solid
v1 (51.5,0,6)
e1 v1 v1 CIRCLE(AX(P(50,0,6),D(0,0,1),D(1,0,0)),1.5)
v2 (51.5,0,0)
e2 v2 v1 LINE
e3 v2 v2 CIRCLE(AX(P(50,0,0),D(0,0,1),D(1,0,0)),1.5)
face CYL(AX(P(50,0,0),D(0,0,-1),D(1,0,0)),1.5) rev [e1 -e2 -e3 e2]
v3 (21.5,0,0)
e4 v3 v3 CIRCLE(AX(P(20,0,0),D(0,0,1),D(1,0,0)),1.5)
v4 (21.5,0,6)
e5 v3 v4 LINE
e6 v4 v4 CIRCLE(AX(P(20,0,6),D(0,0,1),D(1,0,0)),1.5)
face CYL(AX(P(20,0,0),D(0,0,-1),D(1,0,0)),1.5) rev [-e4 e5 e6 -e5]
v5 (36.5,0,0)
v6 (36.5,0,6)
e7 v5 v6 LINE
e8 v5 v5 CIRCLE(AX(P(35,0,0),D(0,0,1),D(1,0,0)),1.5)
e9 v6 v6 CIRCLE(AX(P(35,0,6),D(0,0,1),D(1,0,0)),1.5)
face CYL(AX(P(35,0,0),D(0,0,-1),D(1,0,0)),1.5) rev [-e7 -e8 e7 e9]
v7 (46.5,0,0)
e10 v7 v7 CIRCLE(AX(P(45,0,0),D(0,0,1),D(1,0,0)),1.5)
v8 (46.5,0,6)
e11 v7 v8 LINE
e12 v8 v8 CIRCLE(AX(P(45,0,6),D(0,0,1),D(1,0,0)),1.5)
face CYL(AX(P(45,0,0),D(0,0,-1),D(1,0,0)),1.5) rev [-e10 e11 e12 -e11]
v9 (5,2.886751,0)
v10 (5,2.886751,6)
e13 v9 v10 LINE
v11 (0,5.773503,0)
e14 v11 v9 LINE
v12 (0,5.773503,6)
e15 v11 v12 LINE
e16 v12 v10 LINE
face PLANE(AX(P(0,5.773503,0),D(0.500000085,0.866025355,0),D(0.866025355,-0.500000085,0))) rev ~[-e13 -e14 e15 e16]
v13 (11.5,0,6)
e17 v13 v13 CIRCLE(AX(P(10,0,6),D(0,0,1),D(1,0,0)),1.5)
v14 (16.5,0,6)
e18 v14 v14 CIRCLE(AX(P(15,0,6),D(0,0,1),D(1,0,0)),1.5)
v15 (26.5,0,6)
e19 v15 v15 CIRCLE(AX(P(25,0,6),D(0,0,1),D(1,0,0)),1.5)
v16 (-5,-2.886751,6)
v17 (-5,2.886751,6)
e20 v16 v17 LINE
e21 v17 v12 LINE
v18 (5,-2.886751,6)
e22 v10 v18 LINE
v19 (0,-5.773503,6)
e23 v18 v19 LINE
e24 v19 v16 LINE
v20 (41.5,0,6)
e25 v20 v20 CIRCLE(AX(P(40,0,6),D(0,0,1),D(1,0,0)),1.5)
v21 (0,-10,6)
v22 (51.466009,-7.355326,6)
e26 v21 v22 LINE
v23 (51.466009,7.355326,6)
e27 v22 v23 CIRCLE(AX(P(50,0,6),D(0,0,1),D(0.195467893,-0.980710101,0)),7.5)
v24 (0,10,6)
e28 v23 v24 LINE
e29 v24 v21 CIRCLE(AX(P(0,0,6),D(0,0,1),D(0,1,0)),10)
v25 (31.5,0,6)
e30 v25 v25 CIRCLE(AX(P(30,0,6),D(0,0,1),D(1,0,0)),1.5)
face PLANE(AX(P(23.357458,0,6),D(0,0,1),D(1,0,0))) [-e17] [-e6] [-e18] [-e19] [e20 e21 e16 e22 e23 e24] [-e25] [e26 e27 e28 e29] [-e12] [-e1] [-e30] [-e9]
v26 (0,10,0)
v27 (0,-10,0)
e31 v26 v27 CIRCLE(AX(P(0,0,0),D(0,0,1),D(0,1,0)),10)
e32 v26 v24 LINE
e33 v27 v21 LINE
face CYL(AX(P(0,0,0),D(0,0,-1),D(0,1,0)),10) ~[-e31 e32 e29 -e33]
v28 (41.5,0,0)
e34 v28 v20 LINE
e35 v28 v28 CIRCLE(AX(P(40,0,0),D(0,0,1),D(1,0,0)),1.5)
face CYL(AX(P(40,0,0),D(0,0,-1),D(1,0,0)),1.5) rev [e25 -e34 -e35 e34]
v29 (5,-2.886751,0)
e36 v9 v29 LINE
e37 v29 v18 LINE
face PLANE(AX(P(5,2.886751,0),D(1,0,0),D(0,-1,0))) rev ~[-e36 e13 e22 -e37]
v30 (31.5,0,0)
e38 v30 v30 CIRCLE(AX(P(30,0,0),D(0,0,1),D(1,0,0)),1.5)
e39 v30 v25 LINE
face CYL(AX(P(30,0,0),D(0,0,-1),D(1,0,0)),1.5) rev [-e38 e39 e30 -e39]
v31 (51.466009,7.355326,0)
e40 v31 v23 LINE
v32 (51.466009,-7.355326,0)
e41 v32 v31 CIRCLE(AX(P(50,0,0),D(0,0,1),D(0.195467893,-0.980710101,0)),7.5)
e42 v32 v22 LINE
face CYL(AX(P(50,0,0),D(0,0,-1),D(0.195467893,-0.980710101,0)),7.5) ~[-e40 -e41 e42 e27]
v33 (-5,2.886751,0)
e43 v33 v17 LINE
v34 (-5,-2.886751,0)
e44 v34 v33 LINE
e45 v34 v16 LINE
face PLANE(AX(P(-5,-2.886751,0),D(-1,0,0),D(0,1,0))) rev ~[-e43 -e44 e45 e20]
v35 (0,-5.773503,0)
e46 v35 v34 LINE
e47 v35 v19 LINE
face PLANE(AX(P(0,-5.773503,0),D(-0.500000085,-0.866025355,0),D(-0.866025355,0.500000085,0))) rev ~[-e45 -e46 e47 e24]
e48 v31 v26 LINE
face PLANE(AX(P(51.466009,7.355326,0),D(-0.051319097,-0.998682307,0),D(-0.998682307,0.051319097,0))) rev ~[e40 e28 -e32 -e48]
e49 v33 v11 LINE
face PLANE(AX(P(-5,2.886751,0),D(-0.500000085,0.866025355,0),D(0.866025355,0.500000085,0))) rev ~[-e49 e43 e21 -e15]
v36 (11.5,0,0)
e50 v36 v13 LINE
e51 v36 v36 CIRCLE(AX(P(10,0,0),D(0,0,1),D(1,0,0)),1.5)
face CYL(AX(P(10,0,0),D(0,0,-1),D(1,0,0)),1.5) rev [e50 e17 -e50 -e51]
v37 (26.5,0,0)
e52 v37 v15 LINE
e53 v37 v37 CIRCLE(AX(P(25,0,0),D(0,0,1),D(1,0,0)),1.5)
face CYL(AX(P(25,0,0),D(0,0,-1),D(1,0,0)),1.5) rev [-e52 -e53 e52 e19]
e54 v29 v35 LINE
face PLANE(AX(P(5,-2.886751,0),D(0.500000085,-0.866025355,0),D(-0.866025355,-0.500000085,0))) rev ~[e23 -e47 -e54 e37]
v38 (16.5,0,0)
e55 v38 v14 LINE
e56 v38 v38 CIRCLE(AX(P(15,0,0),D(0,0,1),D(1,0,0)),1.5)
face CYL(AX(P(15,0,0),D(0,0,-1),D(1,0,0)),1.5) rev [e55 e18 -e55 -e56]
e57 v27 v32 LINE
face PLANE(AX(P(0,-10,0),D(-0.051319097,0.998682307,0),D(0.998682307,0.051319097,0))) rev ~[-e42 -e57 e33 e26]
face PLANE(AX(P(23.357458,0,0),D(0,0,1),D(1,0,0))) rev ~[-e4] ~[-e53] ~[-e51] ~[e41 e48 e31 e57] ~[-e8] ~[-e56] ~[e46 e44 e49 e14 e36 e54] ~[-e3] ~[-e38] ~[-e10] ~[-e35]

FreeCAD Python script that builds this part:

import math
import FreeCAD as App
import Part
import Sketcher
from FreeCAD import Vector
Q = App.Units.Quantity


def add_polygon(sketch, points):
    """Adds a closed chain of lines whose ends are joined by coincident constraints."""
    first, n = sketch.GeometryCount, len(points)
    for a, b in zip(points, points[1:] + points[:1]):
        sketch.addGeometry(Part.LineSegment(App.Vector(*a, 0), App.Vector(*b, 0)), False)
    for i in range(n):
        sketch.addConstraint(Sketcher.Constraint("Coincident", first + i, 2, first + (i + 1) % n, 1))

doc = App.newDocument("Part")
body = doc.addObject("PartDesign::Body", "Body")

sketch1 = body.newObject("Sketcher::SketchObject", "Sketch")
sketch1.AttachmentSupport = (doc.getObject("XY_Plane"), [""])
sketch1.MapMode = "FlatFace"
sketch1.addGeometry(Part.LineSegment(Vector(51.5, 7.4, 0), Vector(0, 10, 0)), False)
sketch1.addGeometry(Part.ArcOfCircle(Part.Circle(Vector(0, 0, 0), Vector(0, 0, 1), 10), math.radians(90), math.radians(270)), False)
sketch1.addGeometry(Part.LineSegment(Vector(0, -10, 0), Vector(51.5, -7.4, 0)), False)
sketch1.addGeometry(Part.ArcOfCircle(Part.Circle(Vector(50, 0, 0), Vector(0, 0, 1), 7.5), math.radians(-79), math.radians(79)), False)
add_polygon(sketch1, [(-5, -2.9), (-5, 2.9), (0, 5.8), (5, 2.9), (5, -2.9), (0, -5.8)])
sketch1.addGeometry(Part.Circle(Vector(10, 0, 0), Vector(0, 0, 1), 1.5), False)
sketch1.addGeometry(Part.Circle(Vector(15, 0, 0), Vector(0, 0, 1), 1.5), False)
sketch1.addGeometry(Part.Circle(Vector(20, 0, 0), Vector(0, 0, 1), 1.5), False)
sketch1.addGeometry(Part.Circle(Vector(25, 0, 0), Vector(0, 0, 1), 1.5), False)
sketch1.addGeometry(Part.Circle(Vector(30, 0, 0), Vector(0, 0, 1), 1.5), False)
sketch1.addGeometry(Part.Circle(Vector(35, 0, 0), Vector(0, 0, 1), 1.5), False)
sketch1.addGeometry(Part.Circle(Vector(40, 0, 0), Vector(0, 0, 1), 1.5), False)
sketch1.addGeometry(Part.Circle(Vector(45, 0, 0), Vector(0, 0, 1), 1.5), False)
sketch1.addGeometry(Part.Circle(Vector(50, 0, 0), Vector(0, 0, 1), 1.5), False)
sketch1.addConstraint([
    Sketcher.Constraint("Coincident", 0, 2, 1, 1),
    Sketcher.Constraint("Coincident", 1, 2, 2, 1),
    Sketcher.Constraint("Coincident", 2, 2, 3, 1),
    Sketcher.Constraint("Coincident", 3, 2, 0, 1),
    Sketcher.Constraint("Vertical", 4),
    Sketcher.Constraint("Vertical", 7),
    Sketcher.Constraint("Coincident", 1, 3, -1, 1),
    Sketcher.Constraint("Coincident", 18, 3, 3, 3),
    Sketcher.Constraint("Equal", 10, 11),
    Sketcher.Constraint("Equal", 11, 12),
    Sketcher.Constraint("Equal", 12, 13),
    Sketcher.Constraint("Equal", 13, 14),
    Sketcher.Constraint("Equal", 14, 15),
    Sketcher.Constraint("Equal", 15, 16),
    Sketcher.Constraint("Equal", 16, 17),
    Sketcher.Constraint("Equal", 17, 18),
    Sketcher.Constraint("Symmetric", 4, 2, 7, 2, -1, 1),
    Sketcher.Constraint("Symmetric", 5, 2, 8, 2, -1, 1),
    Sketcher.Constraint("Symmetric", 2, 2, 3, 2, -1),
    Sketcher.Constraint("PointOnObject", 10, 3, -1),
    Sketcher.Constraint("PointOnObject", 11, 3, -1),
    Sketcher.Constraint("PointOnObject", 12, 3, -1),
    Sketcher.Constraint("PointOnObject", 13, 3, -1),
    Sketcher.Constraint("PointOnObject", 14, 3, -1),
    Sketcher.Constraint("PointOnObject", 15, 3, -1),
    Sketcher.Constraint("PointOnObject", 16, 3, -1),
    Sketcher.Constraint("PointOnObject", 17, 3, -1),
    Sketcher.Constraint("PointOnObject", 0, 2, -2),
    Sketcher.Constraint("PointOnObject", 1, 2, -2),
    Sketcher.Constraint("PointOnObject", 5, 2, -2),
    Sketcher.Constraint("Parallel", 6, 9),
    Sketcher.Constraint("Horizontal", 4, 2, 6, 2),
    Sketcher.Constraint("Diameter", 10, Q("3 mm")),
    Sketcher.Constraint("Radius", 1, Q("10 mm")),
    Sketcher.Constraint("Radius", 3, Q("7.5 mm")),
    Sketcher.Constraint("Angle", 5, Q("30.000006 deg")),
    Sketcher.Constraint("DistanceX", -1, 1, 3, 3, Q("50 mm")),
    Sketcher.Constraint("DistanceX", -1, 1, 10, 3, Q("10 mm")),
    Sketcher.Constraint("DistanceX", -1, 1, 11, 3, Q("15 mm")),
    Sketcher.Constraint("DistanceX", -1, 1, 12, 3, Q("20 mm")),
    Sketcher.Constraint("DistanceX", -1, 1, 13, 3, Q("25 mm")),
    Sketcher.Constraint("DistanceX", -1, 1, 14, 3, Q("30 mm")),
    Sketcher.Constraint("DistanceX", -1, 1, 15, 3, Q("35 mm")),
    Sketcher.Constraint("DistanceX", -1, 1, 16, 3, Q("40 mm")),
    Sketcher.Constraint("DistanceX", -1, 1, 17, 3, Q("45 mm")),
    Sketcher.Constraint("DistanceX", 4, 2, -1, 1, Q("5 mm")),
    Sketcher.Constraint("DistanceY", 4, 1, 4, 2, Q("5.773502 mm")),
    Sketcher.Constraint("DistanceX", -1, 1, 2, 2, Q("51.466009 mm")),
])
pad1 = body.newObject("PartDesign::Pad", "Pad")
pad1.Profile = sketch1
pad1.Length = 6

doc.recompute()
